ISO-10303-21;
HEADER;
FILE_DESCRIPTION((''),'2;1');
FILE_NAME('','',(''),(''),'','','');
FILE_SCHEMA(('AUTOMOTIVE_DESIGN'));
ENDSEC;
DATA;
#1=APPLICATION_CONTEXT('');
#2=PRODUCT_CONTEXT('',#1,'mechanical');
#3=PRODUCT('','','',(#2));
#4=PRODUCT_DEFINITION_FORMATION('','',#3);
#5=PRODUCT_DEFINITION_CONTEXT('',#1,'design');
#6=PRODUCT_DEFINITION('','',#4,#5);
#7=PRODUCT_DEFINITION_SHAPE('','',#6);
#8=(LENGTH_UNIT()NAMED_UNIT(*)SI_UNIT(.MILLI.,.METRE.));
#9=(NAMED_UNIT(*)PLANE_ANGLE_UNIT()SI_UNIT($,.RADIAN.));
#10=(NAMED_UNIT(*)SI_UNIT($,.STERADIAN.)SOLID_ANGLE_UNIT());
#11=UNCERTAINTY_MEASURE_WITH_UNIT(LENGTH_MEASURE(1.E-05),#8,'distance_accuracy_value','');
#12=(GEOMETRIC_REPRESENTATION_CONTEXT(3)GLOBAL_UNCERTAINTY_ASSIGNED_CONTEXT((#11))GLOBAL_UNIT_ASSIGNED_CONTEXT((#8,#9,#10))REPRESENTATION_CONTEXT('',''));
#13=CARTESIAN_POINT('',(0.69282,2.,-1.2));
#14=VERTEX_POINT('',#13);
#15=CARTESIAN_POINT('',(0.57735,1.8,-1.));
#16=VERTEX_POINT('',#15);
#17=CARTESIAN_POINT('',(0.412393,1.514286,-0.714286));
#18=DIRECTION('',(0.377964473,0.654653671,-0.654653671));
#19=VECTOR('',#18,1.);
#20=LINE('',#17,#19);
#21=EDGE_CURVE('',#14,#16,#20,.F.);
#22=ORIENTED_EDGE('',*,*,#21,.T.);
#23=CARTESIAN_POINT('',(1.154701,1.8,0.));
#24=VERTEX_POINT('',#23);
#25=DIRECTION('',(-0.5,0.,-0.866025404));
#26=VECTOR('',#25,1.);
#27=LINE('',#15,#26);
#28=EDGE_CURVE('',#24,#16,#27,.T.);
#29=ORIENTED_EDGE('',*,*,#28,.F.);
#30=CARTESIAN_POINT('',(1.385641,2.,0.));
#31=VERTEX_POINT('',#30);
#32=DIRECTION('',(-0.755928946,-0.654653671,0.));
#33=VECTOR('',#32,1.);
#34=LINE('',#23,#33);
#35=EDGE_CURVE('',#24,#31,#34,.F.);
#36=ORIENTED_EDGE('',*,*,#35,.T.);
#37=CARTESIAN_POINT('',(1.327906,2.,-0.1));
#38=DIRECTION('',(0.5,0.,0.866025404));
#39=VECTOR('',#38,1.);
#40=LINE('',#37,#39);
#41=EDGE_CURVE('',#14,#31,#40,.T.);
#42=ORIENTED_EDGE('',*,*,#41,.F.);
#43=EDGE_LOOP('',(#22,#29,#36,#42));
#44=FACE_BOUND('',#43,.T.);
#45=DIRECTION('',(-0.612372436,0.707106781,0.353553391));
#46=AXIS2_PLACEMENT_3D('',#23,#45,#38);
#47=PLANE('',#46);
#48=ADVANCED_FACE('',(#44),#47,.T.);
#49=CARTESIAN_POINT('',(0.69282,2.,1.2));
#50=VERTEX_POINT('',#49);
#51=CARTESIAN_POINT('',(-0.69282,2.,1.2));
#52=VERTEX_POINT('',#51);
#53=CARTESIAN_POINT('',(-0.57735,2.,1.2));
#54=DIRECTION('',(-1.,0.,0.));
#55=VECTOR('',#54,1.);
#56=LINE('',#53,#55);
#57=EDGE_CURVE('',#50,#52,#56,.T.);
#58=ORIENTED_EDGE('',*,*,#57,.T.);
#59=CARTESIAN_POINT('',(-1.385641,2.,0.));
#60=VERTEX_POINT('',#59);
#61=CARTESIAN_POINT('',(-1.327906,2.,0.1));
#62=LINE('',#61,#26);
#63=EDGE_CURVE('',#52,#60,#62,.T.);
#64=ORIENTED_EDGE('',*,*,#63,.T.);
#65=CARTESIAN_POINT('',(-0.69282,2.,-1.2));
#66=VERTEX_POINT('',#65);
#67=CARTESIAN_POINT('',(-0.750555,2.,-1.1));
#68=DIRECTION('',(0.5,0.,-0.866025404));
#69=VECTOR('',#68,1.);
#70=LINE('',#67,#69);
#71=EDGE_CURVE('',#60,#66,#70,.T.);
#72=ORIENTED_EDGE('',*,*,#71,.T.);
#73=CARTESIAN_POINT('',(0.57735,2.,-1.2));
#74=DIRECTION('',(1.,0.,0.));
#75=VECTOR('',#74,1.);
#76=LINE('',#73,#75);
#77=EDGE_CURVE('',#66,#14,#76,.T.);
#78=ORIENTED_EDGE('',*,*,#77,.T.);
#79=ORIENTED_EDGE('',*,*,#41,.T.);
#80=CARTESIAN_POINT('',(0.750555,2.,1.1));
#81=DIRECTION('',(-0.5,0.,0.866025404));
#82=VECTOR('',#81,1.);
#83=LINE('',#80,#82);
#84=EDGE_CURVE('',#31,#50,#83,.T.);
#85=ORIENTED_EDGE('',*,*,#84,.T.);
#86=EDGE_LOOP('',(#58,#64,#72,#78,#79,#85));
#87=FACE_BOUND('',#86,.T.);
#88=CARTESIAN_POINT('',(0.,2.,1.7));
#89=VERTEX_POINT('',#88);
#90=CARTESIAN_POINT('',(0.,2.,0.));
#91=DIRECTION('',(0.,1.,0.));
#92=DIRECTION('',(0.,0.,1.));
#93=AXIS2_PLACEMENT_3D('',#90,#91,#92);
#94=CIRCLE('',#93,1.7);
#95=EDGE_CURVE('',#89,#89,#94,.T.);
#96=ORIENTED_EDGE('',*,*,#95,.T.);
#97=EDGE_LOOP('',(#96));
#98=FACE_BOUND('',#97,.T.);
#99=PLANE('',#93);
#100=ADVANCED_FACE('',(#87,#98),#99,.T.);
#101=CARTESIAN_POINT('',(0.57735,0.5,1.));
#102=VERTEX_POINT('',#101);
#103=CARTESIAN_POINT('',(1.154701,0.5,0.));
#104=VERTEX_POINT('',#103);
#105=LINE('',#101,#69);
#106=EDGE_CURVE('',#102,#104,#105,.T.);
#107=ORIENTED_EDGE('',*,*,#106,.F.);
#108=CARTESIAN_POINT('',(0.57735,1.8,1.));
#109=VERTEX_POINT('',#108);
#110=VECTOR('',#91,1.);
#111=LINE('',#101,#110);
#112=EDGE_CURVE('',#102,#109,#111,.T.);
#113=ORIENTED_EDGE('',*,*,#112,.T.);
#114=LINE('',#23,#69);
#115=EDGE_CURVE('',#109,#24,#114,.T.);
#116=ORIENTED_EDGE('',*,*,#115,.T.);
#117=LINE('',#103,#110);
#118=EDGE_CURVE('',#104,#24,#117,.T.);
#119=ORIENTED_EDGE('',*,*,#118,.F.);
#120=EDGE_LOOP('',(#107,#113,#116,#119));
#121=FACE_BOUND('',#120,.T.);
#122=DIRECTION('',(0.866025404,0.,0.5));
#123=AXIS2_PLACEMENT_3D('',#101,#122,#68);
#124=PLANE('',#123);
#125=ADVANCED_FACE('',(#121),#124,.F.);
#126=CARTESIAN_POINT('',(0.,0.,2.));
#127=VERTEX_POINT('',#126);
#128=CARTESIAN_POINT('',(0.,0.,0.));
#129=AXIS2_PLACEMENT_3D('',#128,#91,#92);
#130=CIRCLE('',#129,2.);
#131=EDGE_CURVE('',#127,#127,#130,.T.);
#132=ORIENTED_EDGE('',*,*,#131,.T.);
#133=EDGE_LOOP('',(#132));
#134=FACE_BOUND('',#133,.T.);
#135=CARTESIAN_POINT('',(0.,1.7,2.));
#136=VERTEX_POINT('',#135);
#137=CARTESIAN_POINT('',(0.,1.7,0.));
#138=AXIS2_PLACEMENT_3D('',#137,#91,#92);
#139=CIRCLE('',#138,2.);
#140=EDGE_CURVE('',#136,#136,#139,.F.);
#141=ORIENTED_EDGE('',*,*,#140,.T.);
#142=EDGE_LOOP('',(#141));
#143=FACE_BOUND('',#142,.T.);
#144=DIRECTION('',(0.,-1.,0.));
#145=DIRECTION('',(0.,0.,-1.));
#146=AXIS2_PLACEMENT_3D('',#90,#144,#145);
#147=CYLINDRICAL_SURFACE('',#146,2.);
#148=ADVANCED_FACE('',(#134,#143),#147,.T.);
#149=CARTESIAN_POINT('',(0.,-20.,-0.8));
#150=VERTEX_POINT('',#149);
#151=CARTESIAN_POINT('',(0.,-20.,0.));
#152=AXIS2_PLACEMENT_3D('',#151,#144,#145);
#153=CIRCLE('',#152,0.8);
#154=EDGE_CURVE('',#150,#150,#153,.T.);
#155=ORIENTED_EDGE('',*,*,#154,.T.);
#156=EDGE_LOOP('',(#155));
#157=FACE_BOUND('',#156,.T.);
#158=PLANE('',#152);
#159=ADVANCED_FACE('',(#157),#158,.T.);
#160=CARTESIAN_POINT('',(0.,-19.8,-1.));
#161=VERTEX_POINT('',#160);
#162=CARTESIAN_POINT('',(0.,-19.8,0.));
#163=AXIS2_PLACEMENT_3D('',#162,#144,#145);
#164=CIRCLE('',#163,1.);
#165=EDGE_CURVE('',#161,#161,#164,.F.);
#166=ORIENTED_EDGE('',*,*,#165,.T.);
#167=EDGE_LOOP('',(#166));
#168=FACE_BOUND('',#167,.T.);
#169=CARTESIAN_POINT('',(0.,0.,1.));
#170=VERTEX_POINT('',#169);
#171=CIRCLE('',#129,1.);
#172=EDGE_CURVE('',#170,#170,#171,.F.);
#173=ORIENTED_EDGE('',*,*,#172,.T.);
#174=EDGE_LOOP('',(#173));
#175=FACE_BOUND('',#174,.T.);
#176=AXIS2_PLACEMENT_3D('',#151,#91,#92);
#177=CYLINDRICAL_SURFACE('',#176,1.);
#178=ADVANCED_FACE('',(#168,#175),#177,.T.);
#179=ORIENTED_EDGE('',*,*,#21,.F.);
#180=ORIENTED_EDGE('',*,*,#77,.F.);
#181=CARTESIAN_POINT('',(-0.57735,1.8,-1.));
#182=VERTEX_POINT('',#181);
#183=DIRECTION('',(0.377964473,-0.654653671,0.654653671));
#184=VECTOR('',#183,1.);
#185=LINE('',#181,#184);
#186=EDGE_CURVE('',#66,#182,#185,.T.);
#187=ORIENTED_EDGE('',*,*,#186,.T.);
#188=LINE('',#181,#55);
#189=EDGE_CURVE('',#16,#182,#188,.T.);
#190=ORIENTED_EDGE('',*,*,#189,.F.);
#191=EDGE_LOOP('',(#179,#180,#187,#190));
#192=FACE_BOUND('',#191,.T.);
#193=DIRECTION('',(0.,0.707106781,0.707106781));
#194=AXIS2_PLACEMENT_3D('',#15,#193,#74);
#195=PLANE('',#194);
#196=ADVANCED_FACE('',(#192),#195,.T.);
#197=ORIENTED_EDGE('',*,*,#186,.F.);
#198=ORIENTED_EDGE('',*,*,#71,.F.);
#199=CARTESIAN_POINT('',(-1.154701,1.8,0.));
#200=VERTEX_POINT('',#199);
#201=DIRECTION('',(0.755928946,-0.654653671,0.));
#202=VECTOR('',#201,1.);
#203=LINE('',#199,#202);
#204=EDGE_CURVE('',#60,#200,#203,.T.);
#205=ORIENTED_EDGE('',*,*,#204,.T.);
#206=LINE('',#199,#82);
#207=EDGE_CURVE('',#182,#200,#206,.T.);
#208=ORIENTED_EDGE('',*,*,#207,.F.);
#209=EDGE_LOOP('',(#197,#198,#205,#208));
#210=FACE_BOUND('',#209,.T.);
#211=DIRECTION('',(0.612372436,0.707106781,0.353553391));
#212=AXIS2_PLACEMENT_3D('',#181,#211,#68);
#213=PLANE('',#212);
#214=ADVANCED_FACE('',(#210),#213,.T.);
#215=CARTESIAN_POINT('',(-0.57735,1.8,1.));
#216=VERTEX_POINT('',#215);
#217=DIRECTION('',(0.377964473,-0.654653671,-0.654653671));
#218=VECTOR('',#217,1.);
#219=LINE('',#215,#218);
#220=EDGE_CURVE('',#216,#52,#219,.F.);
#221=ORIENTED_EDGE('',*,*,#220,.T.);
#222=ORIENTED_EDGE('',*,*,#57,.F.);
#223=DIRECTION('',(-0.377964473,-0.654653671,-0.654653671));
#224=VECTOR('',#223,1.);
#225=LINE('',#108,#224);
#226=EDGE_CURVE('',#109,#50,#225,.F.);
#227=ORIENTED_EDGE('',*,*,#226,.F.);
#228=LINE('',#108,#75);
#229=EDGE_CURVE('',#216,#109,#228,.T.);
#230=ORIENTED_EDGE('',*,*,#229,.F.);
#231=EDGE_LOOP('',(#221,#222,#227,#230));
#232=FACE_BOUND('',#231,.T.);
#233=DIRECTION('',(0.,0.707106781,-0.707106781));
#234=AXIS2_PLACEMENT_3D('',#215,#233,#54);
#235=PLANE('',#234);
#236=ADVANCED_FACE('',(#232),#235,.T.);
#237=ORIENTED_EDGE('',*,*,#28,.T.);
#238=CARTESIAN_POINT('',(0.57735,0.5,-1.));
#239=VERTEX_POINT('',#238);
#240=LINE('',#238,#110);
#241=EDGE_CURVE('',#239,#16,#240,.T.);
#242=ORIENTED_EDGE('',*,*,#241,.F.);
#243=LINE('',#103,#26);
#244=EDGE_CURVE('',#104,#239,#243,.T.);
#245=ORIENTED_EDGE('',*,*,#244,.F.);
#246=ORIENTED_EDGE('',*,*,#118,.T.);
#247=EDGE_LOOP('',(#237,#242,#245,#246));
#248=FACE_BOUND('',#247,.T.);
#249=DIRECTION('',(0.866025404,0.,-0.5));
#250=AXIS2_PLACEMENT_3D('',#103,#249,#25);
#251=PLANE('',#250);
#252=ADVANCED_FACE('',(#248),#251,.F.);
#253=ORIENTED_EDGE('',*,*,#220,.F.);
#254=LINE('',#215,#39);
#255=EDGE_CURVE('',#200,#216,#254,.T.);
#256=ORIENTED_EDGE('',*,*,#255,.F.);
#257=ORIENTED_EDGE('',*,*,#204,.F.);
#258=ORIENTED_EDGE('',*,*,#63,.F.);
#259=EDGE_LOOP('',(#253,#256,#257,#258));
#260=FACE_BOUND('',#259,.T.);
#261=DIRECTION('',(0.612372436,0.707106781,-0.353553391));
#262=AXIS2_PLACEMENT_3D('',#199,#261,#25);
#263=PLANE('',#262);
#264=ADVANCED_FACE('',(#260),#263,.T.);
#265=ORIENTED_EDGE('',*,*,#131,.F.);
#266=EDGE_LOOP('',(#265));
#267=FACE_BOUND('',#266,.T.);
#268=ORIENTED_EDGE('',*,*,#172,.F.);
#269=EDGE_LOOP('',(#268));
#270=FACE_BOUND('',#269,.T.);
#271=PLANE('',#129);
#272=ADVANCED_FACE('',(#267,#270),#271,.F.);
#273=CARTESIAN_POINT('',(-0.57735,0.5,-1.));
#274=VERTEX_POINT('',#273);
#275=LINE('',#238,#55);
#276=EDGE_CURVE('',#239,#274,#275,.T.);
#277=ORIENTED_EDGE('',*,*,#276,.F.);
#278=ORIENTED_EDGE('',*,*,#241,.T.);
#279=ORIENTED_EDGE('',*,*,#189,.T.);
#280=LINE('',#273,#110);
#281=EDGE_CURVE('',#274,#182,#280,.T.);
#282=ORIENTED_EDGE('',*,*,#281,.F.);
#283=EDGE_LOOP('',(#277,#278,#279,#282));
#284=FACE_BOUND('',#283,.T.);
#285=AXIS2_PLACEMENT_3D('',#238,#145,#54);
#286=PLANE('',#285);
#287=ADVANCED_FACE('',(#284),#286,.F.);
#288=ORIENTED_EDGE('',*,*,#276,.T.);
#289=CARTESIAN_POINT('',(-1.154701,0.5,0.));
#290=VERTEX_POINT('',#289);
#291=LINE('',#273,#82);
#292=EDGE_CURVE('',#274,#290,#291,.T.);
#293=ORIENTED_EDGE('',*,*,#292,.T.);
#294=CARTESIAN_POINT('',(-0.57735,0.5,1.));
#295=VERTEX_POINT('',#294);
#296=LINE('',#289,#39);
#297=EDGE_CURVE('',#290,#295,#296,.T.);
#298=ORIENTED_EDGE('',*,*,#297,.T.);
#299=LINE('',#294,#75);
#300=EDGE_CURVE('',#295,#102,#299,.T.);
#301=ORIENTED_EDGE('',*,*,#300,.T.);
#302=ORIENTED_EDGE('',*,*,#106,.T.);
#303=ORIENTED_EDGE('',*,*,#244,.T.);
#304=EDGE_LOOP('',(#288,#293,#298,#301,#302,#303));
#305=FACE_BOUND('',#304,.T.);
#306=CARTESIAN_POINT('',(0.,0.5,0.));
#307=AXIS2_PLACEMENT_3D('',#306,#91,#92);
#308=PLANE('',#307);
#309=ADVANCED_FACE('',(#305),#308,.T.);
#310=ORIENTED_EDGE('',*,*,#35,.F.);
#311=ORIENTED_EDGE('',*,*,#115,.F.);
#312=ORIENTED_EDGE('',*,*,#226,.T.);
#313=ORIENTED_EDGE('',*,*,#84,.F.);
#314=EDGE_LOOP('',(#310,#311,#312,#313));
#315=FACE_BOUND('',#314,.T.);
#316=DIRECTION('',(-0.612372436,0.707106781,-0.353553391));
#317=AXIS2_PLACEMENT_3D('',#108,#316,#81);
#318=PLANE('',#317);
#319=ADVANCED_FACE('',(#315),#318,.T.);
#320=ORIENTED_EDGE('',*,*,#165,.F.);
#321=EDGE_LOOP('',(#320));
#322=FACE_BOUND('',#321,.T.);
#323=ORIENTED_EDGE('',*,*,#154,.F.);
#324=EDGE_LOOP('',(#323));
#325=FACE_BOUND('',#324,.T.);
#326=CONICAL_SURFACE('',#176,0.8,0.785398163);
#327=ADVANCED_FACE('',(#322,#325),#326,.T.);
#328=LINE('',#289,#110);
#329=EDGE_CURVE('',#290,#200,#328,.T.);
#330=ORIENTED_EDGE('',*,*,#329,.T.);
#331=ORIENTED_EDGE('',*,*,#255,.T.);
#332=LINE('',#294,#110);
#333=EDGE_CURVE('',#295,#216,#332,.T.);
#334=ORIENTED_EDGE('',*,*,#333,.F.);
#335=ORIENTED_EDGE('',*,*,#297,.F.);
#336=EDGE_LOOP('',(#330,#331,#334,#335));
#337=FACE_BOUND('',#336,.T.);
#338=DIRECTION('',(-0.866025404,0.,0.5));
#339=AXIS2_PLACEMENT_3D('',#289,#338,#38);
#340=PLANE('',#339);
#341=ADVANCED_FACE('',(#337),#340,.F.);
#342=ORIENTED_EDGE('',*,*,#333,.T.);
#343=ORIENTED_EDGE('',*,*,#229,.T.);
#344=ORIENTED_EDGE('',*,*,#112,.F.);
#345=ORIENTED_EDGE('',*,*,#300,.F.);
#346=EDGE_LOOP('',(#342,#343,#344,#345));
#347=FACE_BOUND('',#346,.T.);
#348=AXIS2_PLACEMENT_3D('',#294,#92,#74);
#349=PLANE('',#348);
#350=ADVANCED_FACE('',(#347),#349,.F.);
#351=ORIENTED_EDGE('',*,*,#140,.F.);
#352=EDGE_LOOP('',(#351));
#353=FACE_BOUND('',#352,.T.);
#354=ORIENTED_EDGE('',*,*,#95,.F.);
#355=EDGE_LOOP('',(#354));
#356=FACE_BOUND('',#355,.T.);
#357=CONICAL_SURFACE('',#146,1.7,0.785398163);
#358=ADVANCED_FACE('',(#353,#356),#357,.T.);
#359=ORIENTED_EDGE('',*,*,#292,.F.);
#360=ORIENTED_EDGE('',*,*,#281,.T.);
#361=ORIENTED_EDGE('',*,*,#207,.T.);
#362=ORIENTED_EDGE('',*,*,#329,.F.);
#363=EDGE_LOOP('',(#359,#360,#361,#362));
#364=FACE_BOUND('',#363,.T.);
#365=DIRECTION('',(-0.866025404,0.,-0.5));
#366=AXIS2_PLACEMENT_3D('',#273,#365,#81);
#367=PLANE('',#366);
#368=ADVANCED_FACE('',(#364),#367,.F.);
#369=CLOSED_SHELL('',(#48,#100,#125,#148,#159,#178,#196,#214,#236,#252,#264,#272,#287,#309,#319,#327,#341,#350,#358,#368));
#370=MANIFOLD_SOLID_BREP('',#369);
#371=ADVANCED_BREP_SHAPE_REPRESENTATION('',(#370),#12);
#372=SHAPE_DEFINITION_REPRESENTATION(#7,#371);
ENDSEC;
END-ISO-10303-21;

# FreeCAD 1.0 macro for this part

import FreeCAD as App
import Part
import Sketcher
Q = App.Units.Quantity


def edges_at(feature, points):
    """Names of the edges that pass closest to the given points."""
    edges = feature.Shape.Edges
    near = lambda p: min(range(len(edges)), key=lambda i: edges[i].distToShape(Part.Vertex(*p))[0])
    return sorted({f"Edge{near(p) + 1}" for p in points})

doc = App.newDocument("Part")
params = doc.addObject("Spreadsheet::Sheet", "Params")
for row, (alias, value) in enumerate([
    ("sketch1_diameter", "4 mm"),
    ("pad1_length", "2 mm"),
    ("chamfer_size", "0.3 mm"),
    ("pocket1_length", "1.5 mm"),
    ("chamfer2_size", "0.2 mm"),
    ("sketch3_diameter", "2 mm"),
    ("pad2_length", "20 mm"),
    ("chamfer3_size", "0.2 mm"),
], start=1):
    params.set(f"A{row}", alias)
    params.set(f"B{row}", "=" + value)
    params.setAlias(f"B{row}", alias)

body = doc.addObject("PartDesign::Body", "Body")

# Sketch on XZ plane
sketch1 = body.newObject("Sketcher::SketchObject", "Sketch")
sketch1.AttachmentSupport = (doc.getObject("XZ_Plane"), [""])
sketch1.MapMode = "FlatFace"
sketch1.addGeometry(Part.Circle(App.Vector(0, 0, 0), App.Vector(0, 0, 1), 2), False)
sketch1.addConstraint(Sketcher.Constraint("Coincident", 0, 3, -1, 1))
sketch1.addConstraint(Sketcher.Constraint("Diameter", 0, 4.0))
sketch1.setExpression("Constraints[1]", "Params.sketch1_diameter")
pad1 = body.newObject("PartDesign::Pad", "Pad")
pad1.Profile = sketch1
pad1.setExpression("Length", "Params.pad1_length")
pad1.Reversed = True
doc.recompute()

chamfer = body.newObject("PartDesign::Chamfer", "Chamfer")
chamfer.Base = (pad1, edges_at(pad1, [(0, 2, -2)]))
chamfer.setExpression("Size", "Params.chamfer_size")

# Sketch on XZ plane
sketch2 = body.newObject("Sketcher::SketchObject", "Sketch001")
sketch2.AttachmentSupport = (doc.getObject("XZ_Plane"), [""])
sketch2.MapMode = "FlatFace"
sketch2.AttachmentOffset = App.Placement(App.Vector(0, 0, -2), App.Rotation())
sketch2.addGeometry(Part.LineSegment(App.Vector(1.154701, 0, 0), App.Vector(0.57735, -1, 0)), False)
sketch2.addGeometry(Part.LineSegment(App.Vector(0.57735, -1, 0), App.Vector(-0.57735, -1, 0)), False)
sketch2.addGeometry(Part.LineSegment(App.Vector(-0.57735, -1, 0), App.Vector(-1.154701, 0, 0)), False)
sketch2.addGeometry(Part.LineSegment(App.Vector(-1.154701, 0, 0), App.Vector(-0.57735, 1, 0)), False)
sketch2.addGeometry(Part.LineSegment(App.Vector(-0.57735, 1, 0), App.Vector(0.57735, 1, 0)), False)
sketch2.addGeometry(Part.LineSegment(App.Vector(0.57735, 1, 0), App.Vector(1.154701, 0, 0)), False)
sketch2.addConstraint(Sketcher.Constraint("Coincident", 0, 2, 1, 1))
sketch2.addConstraint(Sketcher.Constraint("Coincident", 1, 2, 2, 1))
sketch2.addConstraint(Sketcher.Constraint("Coincident", 2, 2, 3, 1))
sketch2.addConstraint(Sketcher.Constraint("Coincident", 3, 2, 4, 1))
sketch2.addConstraint(Sketcher.Constraint("Coincident", 4, 2, 5, 1))
sketch2.addConstraint(Sketcher.Constraint("Coincident", 5, 2, 0, 1))
sketch2.addConstraint(Sketcher.Constraint("Horizontal", 1))
sketch2.addConstraint(Sketcher.Constraint("Horizontal", 4))
sketch2.addConstraint(Sketcher.Constraint("Symmetric", 0, 2, 3, 2, -1, 1))
sketch2.addConstraint(Sketcher.Constraint("Symmetric", 2, 2, 5, 2, -1, 1))
sketch2.addConstraint(Sketcher.Constraint("PointOnObject", 2, 2, -1))
sketch2.addConstraint(Sketcher.Constraint("Parallel", 2, 5))
sketch2.addConstraint(Sketcher.Constraint("Vertical", 1, 2, 3, 2))
sketch2.addConstraint(Sketcher.Constraint("Angle", 0, Q("-120 deg")))
sketch2.addConstraint(Sketcher.Constraint("DistanceY", 0, 2, -1, 1, 1.0))
sketch2.addConstraint(Sketcher.Constraint("DistanceX", 1, 2, 1, 1, 1.154701))
pocket1 = body.newObject("PartDesign::Pocket", "Pocket")
pocket1.Profile = sketch2
pocket1.setExpression("Length", "Params.pocket1_length")
pocket1.Reversed = True
doc.recompute()

chamfer2 = body.newObject("PartDesign::Chamfer", "Chamfer001")
chamfer2.Base = (pocket1, edges_at(pocket1, [
    (0.866, 2, 0.5),
    (0.866, 2, -0.5),
    (0, 2, -1),
    (-0.866, 2, -0.5),
    (-0.866, 2, 0.5),
    (0, 2, 1),
]))
chamfer2.setExpression("Size", "Params.chamfer2_size")

# Sketch on XZ plane
sketch3 = body.newObject("Sketcher::SketchObject", "Sketch002")
sketch3.AttachmentSupport = (doc.getObject("XZ_Plane"), [""])
sketch3.MapMode = "FlatFace"
sketch3.addGeometry(Part.Circle(App.Vector(0, 0, 0), App.Vector(0, 0, 1), 1), False)
sketch3.addConstraint(Sketcher.Constraint("Coincident", 0, 3, -1, 1))
sketch3.addConstraint(Sketcher.Constraint("Diameter", 0, 2.0))
sketch3.setExpression("Constraints[1]", "Params.sketch3_diameter")
pad2 = body.newObject("PartDesign::Pad", "Pad001")
pad2.Profile = sketch3
pad2.setExpression("Length", "Params.pad2_length")
doc.recompute()

chamfer3 = body.newObject("PartDesign::Chamfer", "Chamfer002")
chamfer3.Base = (pad2, edges_at(pad2, [(0, -20, -1)]))
chamfer3.setExpression("Size", "Params.chamfer3_size")

doc.recompute()
